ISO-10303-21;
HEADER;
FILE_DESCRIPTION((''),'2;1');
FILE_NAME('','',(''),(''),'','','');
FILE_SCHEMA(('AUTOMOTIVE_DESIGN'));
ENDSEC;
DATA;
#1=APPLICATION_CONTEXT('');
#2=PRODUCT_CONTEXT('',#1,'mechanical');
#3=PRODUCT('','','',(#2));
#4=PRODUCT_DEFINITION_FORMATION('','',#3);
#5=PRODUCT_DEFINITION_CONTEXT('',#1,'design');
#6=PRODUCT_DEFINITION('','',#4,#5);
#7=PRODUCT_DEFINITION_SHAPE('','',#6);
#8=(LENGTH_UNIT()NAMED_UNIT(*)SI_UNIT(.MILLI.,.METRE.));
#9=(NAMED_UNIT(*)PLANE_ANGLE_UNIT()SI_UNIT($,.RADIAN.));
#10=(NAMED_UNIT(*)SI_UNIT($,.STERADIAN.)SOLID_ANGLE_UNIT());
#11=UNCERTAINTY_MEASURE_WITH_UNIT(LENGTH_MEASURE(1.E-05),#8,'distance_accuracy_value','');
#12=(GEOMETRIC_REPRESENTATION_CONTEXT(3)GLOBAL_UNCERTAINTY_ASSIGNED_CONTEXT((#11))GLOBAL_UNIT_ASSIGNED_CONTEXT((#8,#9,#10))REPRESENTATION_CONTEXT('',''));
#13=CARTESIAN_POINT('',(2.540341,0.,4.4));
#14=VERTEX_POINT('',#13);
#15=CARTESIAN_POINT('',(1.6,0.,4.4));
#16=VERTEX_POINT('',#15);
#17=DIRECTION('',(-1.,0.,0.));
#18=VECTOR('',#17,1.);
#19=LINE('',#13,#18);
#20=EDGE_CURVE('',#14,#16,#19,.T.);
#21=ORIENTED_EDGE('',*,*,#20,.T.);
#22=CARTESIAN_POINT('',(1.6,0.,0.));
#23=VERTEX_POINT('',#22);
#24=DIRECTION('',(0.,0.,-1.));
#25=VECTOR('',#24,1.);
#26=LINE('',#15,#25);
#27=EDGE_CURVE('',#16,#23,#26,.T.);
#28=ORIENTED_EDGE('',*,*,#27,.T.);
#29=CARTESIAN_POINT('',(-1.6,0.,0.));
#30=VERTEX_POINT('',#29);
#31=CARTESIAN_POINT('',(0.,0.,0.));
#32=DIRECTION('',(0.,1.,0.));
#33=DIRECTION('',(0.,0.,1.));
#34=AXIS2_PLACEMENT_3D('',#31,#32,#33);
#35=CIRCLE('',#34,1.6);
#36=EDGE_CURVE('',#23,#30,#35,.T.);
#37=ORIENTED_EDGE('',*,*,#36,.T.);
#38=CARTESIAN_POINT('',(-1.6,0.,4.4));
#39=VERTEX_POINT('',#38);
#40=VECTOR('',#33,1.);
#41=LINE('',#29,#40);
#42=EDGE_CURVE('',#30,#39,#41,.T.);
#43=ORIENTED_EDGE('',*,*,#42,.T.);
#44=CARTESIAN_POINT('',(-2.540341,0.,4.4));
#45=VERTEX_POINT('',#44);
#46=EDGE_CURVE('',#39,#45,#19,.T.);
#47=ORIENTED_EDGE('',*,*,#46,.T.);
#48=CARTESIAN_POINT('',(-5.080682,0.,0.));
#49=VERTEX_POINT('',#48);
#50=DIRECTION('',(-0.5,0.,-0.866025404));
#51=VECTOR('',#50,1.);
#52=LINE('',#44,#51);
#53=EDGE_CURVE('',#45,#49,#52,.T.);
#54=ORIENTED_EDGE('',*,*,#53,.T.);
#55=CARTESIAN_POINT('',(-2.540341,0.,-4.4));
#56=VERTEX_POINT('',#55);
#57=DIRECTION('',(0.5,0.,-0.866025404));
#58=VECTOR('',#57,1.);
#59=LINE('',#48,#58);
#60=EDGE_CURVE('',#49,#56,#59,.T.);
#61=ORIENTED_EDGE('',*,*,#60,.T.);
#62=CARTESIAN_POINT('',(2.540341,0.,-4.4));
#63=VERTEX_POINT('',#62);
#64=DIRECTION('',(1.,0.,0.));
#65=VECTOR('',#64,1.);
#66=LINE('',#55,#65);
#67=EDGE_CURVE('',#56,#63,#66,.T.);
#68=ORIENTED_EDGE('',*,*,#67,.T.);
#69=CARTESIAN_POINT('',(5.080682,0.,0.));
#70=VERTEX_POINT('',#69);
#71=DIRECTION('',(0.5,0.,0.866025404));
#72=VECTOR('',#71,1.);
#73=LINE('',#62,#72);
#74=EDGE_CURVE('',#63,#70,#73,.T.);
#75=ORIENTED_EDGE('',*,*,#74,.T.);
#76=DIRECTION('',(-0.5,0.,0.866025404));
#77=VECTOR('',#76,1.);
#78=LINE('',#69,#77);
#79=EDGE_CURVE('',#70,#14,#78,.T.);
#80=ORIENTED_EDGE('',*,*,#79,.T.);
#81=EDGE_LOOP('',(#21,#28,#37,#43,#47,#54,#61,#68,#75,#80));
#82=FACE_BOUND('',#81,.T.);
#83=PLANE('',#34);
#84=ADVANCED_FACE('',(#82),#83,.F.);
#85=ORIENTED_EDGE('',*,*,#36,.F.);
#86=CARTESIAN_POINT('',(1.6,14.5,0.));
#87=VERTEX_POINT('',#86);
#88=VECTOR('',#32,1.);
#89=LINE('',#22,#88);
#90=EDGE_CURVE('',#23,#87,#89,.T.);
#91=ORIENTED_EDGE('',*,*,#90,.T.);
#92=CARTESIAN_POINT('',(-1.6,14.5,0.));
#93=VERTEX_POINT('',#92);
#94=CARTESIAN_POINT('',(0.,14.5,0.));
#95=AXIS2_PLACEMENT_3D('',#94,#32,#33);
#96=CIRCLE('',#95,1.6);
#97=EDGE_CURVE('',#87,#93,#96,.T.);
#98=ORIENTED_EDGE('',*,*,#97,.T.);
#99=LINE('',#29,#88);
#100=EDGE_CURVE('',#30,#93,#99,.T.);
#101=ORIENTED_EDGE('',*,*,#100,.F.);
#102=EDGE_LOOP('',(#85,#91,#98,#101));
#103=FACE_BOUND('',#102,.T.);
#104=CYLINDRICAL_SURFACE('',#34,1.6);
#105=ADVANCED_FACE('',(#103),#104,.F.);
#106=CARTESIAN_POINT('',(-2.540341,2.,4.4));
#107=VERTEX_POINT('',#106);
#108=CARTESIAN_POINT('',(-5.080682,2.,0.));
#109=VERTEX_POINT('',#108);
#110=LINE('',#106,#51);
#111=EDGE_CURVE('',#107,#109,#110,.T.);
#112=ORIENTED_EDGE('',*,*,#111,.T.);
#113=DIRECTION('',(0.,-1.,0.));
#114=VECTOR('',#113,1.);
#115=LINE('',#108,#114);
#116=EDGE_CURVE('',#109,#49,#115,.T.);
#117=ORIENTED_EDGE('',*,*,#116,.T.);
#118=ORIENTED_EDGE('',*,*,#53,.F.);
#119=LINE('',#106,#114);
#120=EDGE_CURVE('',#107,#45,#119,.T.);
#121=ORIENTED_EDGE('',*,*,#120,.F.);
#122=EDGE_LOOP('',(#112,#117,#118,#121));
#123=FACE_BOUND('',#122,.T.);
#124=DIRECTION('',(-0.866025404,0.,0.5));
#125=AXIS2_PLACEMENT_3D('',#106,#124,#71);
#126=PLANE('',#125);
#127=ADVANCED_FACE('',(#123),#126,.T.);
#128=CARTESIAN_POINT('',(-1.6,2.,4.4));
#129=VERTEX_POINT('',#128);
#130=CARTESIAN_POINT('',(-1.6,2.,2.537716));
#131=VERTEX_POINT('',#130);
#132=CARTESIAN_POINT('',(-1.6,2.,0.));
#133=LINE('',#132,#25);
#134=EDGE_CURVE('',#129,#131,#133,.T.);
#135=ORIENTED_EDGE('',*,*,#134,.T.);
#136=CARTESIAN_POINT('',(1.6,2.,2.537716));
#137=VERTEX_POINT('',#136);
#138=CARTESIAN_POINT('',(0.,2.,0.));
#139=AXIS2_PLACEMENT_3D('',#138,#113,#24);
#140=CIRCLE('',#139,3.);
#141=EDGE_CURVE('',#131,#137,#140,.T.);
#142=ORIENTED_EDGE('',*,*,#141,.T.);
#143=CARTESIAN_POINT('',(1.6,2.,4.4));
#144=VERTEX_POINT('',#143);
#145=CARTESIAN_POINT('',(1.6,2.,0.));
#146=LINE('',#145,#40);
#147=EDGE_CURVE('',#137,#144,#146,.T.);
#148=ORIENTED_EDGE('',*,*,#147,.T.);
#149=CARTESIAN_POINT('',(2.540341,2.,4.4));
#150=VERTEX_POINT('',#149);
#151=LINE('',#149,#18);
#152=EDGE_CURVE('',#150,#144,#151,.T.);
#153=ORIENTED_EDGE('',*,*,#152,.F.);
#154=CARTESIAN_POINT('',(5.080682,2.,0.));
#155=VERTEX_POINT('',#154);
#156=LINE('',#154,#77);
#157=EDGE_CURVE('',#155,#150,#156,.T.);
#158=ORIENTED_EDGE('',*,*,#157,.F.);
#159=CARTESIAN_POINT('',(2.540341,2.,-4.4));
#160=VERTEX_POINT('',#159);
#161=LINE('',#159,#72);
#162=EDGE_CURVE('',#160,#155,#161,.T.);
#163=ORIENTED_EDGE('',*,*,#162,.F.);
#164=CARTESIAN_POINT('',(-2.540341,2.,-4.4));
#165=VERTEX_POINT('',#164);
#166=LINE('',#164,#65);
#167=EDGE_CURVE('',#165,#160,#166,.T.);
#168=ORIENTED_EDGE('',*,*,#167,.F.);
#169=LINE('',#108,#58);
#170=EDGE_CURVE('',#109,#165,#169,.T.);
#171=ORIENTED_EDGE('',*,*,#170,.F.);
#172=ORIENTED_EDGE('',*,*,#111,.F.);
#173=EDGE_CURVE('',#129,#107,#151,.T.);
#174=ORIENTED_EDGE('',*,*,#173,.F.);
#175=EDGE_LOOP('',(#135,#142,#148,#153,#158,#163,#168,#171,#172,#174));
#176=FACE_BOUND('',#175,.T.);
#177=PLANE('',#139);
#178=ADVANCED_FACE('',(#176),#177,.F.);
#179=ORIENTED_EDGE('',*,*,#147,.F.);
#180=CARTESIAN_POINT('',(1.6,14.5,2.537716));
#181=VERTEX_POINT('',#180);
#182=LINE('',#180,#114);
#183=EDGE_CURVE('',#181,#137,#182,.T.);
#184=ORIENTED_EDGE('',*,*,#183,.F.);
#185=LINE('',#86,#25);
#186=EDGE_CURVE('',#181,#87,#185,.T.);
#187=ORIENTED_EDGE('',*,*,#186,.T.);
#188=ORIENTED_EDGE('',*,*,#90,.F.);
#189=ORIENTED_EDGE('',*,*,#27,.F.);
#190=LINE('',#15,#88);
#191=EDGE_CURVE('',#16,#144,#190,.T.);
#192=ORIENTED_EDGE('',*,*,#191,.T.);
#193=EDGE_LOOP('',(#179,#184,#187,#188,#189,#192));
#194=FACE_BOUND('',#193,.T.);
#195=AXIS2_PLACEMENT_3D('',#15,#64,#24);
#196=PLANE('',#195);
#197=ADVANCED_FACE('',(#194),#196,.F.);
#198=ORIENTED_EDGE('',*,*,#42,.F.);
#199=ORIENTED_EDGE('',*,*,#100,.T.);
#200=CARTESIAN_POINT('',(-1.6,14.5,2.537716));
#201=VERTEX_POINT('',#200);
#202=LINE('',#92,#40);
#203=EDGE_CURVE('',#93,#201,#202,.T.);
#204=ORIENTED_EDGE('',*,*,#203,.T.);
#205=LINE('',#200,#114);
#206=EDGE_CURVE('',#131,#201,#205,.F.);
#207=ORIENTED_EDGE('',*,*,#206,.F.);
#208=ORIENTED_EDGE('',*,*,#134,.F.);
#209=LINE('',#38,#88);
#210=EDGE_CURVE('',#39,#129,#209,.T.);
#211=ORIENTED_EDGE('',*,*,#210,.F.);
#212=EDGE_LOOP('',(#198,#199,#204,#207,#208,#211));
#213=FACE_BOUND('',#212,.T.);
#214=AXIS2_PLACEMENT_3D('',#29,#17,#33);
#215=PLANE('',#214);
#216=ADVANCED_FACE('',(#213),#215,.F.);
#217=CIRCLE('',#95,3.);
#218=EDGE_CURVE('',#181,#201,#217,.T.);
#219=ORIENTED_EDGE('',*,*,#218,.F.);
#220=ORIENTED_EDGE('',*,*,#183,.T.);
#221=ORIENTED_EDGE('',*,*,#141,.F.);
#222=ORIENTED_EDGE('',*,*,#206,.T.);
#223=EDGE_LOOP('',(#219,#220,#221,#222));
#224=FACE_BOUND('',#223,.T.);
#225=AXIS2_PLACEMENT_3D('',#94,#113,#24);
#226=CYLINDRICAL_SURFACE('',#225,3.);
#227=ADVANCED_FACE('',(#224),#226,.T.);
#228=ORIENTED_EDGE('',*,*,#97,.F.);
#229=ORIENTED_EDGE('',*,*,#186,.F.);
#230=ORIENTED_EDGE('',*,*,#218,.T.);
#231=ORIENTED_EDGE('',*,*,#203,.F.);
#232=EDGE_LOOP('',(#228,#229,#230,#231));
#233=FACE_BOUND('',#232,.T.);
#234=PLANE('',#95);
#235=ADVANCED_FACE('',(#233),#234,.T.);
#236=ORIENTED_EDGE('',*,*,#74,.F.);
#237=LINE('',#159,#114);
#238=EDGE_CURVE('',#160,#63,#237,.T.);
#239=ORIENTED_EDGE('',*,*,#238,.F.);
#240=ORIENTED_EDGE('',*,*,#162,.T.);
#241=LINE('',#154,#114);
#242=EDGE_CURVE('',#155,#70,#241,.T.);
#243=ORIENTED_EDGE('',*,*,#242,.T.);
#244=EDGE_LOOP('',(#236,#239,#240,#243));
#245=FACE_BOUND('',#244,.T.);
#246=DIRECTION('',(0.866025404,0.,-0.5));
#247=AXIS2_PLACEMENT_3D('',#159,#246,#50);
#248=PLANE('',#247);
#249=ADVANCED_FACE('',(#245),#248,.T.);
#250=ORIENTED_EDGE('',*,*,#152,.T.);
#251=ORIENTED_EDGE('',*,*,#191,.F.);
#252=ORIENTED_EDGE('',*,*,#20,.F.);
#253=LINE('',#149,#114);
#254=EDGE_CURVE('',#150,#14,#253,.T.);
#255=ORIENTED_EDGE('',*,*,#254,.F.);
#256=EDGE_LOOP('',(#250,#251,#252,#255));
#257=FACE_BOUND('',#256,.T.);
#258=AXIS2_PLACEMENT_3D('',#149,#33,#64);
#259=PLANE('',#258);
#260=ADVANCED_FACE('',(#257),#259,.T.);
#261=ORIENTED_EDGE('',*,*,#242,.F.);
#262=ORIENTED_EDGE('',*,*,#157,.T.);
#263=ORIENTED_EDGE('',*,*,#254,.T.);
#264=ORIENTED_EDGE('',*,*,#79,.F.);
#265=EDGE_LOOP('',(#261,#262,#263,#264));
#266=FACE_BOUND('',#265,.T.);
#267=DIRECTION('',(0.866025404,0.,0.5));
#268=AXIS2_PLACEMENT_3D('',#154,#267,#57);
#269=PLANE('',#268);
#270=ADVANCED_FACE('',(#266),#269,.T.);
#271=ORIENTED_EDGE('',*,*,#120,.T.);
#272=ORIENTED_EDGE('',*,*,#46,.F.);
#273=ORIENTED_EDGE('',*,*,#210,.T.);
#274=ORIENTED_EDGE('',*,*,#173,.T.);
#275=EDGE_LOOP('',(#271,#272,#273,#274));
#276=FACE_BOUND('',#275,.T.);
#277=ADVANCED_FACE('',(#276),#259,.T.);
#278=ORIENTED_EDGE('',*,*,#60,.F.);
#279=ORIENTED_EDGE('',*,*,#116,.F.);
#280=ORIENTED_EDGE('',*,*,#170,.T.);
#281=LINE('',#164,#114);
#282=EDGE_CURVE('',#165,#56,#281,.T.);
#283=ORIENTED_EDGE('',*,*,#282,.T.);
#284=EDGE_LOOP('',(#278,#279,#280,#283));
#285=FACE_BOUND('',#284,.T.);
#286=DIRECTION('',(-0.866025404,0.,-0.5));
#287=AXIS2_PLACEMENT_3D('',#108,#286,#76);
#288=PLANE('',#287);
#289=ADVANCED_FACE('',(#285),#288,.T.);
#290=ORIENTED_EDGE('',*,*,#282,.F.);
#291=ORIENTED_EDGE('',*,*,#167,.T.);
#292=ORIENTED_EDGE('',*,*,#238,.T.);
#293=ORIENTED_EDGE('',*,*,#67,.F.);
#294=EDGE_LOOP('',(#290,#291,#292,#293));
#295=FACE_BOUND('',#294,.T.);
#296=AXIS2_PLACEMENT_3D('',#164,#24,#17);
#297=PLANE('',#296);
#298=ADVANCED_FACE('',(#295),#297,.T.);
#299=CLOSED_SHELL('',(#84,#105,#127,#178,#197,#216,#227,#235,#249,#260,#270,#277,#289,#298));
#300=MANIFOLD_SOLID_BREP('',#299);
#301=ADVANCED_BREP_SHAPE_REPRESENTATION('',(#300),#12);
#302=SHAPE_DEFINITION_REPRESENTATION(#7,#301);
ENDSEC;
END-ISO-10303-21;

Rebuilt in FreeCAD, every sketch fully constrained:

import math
import FreeCAD as App
import Part
import Sketcher
Q = App.Units.Quantity

doc = App.newDocument("Part")
params = doc.addObject("Spreadsheet::Sheet", "Params")
for row, (alias, value) in enumerate([
    ("sketch1_diameter", "6 mm"),
    ("pad1_length", "14.5 mm"),
    ("pad2_length", "2 mm"),
    ("sketch3_radius", "1.6 mm"),
    ("sketch3_height", "4.4 mm"),
], start=1):
    params.set(f"A{row}", alias)
    params.set(f"B{row}", "=" + value)
    params.setAlias(f"B{row}", alias)

body = doc.addObject("PartDesign::Body", "Body")

sketch1 = doc.addObject("Sketcher::SketchObject", "Sketch")
body.addObject(sketch1)
sketch1.AttachmentSupport = (doc.XZ_Plane, [""])
sketch1.MapMode = "FlatFace"
sketch1.addGeometry(Part.Circle(App.Vector(0, 0, 0), App.Vector(0, 0, 1), 3), False)
sketch1.addConstraint([
    Sketcher.Constraint("Coincident", 0, 3, -1, 1),
    Sketcher.Constraint("Diameter", 0, Q("6 mm")),
])
sketch1.setExpression("Constraints[1]", "Params.sketch1_diameter")
pad1 = doc.addObject("PartDesign::Pad", "Pad")
body.addObject(pad1)
pad1.Profile = sketch1
pad1.setExpression("Length", "Params.pad1_length")
pad1.Reversed = True

sketch2 = doc.addObject("Sketcher::SketchObject", "Sketch001")
body.addObject(sketch2)
sketch2.AttachmentSupport = (doc.XZ_Plane, [""])
sketch2.MapMode = "FlatFace"
sketch2.addGeometry([
    Part.LineSegment(App.Vector(-5, 0, 0), App.Vector(-3, -4, 0)),
    Part.LineSegment(App.Vector(-3, -4, 0), App.Vector(3, -4, 0)),
    Part.LineSegment(App.Vector(3, -4, 0), App.Vector(5, 0, 0)),
    Part.LineSegment(App.Vector(5, 0, 0), App.Vector(3, 4, 0)),
    Part.LineSegment(App.Vector(3, 4, 0), App.Vector(-3, 4, 0)),
    Part.LineSegment(App.Vector(-3, 4, 0), App.Vector(-5, 0, 0)),
], False)
sketch2.addConstraint([
    Sketcher.Constraint("Coincident", 0, 2, 1, 1),
    Sketcher.Constraint("Coincident", 1, 2, 2, 1),
    Sketcher.Constraint("Coincident", 2, 2, 3, 1),
    Sketcher.Constraint("Coincident", 3, 2, 4, 1),
    Sketcher.Constraint("Coincident", 4, 2, 5, 1),
    Sketcher.Constraint("Coincident", 5, 2, 0, 1),
    Sketcher.Constraint("Horizontal", 1),
    Sketcher.Constraint("Horizontal", 4),
    Sketcher.Constraint("Symmetric", 0, 2, 3, 2, -1, 1),
    Sketcher.Constraint("Symmetric", 2, 2, 5, 2, -1, 1),
    Sketcher.Constraint("PointOnObject", 2, 2, -1),
    Sketcher.Constraint("Parallel", 2, 5),
    Sketcher.Constraint("Vertical", 1, 2, 3, 2),
    Sketcher.Constraint("Angle", 0, Q("-60 deg")),
    Sketcher.Constraint("DistanceY", 0, 2, -1, 1, Q("4.4 mm")),
    Sketcher.Constraint("DistanceX", 1, 1, 1, 2, Q("5.080682 mm")),
])
pad2 = doc.addObject("PartDesign::Pad", "Pad001")
body.addObject(pad2)
pad2.Profile = sketch2
pad2.setExpression("Length", "Params.pad2_length")
pad2.Reversed = True

sketch3 = doc.addObject("Sketcher::SketchObject", "Sketch002")
body.addObject(sketch3)
sketch3.AttachmentSupport = (doc.XZ_Plane, [""])
sketch3.MapMode = "FlatFace"
sketch3.AttachmentOffset = App.Placement(App.Vector(0, 0, -14.5), App.Rotation())
sketch3.addGeometry([
    Part.LineSegment(App.Vector(-1.6, 0, 0), App.Vector(-1.6, 4.4, 0)),
    Part.LineSegment(App.Vector(-1.6, 4.4, 0), App.Vector(1.6, 4.4, 0)),
    Part.LineSegment(App.Vector(1.6, 4.4, 0), App.Vector(1.6, 0, 0)),
    Part.ArcOfCircle(Part.Circle(App.Vector(0, 0, 0), App.Vector(0, 0, 1), 1.6), math.radians(180), math.radians(360)),
], False)
sketch3.addConstraint([
    Sketcher.Constraint("Coincident", 0, 2, 1, 1),
    Sketcher.Constraint("Coincident", 1, 2, 2, 1),
    Sketcher.Constraint("Tangent", 2, 2, 3, 2),
    Sketcher.Constraint("Tangent", 3, 1, 0, 1),
    Sketcher.Constraint("Vertical", 0),
    Sketcher.Constraint("Horizontal", 1),
    Sketcher.Constraint("Vertical", 2),
    Sketcher.Constraint("Coincident", 3, 3, -1, 1),
    Sketcher.Constraint("Radius", 3, Q("1.6 mm")),
    Sketcher.Constraint("DistanceY", 0, 1, 0, 2, Q("4.4 mm")),
])
sketch3.setExpression("Constraints[8]", "Params.sketch3_radius")
sketch3.setExpression("Constraints[9]", "Params.sketch3_height")
pocket1 = doc.addObject("PartDesign::Pocket", "Pocket")
body.addObject(pocket1)
pocket1.Profile = sketch3
pocket1.Type = "ThroughAll"
pocket1.Midplane = True

doc.recompute()
